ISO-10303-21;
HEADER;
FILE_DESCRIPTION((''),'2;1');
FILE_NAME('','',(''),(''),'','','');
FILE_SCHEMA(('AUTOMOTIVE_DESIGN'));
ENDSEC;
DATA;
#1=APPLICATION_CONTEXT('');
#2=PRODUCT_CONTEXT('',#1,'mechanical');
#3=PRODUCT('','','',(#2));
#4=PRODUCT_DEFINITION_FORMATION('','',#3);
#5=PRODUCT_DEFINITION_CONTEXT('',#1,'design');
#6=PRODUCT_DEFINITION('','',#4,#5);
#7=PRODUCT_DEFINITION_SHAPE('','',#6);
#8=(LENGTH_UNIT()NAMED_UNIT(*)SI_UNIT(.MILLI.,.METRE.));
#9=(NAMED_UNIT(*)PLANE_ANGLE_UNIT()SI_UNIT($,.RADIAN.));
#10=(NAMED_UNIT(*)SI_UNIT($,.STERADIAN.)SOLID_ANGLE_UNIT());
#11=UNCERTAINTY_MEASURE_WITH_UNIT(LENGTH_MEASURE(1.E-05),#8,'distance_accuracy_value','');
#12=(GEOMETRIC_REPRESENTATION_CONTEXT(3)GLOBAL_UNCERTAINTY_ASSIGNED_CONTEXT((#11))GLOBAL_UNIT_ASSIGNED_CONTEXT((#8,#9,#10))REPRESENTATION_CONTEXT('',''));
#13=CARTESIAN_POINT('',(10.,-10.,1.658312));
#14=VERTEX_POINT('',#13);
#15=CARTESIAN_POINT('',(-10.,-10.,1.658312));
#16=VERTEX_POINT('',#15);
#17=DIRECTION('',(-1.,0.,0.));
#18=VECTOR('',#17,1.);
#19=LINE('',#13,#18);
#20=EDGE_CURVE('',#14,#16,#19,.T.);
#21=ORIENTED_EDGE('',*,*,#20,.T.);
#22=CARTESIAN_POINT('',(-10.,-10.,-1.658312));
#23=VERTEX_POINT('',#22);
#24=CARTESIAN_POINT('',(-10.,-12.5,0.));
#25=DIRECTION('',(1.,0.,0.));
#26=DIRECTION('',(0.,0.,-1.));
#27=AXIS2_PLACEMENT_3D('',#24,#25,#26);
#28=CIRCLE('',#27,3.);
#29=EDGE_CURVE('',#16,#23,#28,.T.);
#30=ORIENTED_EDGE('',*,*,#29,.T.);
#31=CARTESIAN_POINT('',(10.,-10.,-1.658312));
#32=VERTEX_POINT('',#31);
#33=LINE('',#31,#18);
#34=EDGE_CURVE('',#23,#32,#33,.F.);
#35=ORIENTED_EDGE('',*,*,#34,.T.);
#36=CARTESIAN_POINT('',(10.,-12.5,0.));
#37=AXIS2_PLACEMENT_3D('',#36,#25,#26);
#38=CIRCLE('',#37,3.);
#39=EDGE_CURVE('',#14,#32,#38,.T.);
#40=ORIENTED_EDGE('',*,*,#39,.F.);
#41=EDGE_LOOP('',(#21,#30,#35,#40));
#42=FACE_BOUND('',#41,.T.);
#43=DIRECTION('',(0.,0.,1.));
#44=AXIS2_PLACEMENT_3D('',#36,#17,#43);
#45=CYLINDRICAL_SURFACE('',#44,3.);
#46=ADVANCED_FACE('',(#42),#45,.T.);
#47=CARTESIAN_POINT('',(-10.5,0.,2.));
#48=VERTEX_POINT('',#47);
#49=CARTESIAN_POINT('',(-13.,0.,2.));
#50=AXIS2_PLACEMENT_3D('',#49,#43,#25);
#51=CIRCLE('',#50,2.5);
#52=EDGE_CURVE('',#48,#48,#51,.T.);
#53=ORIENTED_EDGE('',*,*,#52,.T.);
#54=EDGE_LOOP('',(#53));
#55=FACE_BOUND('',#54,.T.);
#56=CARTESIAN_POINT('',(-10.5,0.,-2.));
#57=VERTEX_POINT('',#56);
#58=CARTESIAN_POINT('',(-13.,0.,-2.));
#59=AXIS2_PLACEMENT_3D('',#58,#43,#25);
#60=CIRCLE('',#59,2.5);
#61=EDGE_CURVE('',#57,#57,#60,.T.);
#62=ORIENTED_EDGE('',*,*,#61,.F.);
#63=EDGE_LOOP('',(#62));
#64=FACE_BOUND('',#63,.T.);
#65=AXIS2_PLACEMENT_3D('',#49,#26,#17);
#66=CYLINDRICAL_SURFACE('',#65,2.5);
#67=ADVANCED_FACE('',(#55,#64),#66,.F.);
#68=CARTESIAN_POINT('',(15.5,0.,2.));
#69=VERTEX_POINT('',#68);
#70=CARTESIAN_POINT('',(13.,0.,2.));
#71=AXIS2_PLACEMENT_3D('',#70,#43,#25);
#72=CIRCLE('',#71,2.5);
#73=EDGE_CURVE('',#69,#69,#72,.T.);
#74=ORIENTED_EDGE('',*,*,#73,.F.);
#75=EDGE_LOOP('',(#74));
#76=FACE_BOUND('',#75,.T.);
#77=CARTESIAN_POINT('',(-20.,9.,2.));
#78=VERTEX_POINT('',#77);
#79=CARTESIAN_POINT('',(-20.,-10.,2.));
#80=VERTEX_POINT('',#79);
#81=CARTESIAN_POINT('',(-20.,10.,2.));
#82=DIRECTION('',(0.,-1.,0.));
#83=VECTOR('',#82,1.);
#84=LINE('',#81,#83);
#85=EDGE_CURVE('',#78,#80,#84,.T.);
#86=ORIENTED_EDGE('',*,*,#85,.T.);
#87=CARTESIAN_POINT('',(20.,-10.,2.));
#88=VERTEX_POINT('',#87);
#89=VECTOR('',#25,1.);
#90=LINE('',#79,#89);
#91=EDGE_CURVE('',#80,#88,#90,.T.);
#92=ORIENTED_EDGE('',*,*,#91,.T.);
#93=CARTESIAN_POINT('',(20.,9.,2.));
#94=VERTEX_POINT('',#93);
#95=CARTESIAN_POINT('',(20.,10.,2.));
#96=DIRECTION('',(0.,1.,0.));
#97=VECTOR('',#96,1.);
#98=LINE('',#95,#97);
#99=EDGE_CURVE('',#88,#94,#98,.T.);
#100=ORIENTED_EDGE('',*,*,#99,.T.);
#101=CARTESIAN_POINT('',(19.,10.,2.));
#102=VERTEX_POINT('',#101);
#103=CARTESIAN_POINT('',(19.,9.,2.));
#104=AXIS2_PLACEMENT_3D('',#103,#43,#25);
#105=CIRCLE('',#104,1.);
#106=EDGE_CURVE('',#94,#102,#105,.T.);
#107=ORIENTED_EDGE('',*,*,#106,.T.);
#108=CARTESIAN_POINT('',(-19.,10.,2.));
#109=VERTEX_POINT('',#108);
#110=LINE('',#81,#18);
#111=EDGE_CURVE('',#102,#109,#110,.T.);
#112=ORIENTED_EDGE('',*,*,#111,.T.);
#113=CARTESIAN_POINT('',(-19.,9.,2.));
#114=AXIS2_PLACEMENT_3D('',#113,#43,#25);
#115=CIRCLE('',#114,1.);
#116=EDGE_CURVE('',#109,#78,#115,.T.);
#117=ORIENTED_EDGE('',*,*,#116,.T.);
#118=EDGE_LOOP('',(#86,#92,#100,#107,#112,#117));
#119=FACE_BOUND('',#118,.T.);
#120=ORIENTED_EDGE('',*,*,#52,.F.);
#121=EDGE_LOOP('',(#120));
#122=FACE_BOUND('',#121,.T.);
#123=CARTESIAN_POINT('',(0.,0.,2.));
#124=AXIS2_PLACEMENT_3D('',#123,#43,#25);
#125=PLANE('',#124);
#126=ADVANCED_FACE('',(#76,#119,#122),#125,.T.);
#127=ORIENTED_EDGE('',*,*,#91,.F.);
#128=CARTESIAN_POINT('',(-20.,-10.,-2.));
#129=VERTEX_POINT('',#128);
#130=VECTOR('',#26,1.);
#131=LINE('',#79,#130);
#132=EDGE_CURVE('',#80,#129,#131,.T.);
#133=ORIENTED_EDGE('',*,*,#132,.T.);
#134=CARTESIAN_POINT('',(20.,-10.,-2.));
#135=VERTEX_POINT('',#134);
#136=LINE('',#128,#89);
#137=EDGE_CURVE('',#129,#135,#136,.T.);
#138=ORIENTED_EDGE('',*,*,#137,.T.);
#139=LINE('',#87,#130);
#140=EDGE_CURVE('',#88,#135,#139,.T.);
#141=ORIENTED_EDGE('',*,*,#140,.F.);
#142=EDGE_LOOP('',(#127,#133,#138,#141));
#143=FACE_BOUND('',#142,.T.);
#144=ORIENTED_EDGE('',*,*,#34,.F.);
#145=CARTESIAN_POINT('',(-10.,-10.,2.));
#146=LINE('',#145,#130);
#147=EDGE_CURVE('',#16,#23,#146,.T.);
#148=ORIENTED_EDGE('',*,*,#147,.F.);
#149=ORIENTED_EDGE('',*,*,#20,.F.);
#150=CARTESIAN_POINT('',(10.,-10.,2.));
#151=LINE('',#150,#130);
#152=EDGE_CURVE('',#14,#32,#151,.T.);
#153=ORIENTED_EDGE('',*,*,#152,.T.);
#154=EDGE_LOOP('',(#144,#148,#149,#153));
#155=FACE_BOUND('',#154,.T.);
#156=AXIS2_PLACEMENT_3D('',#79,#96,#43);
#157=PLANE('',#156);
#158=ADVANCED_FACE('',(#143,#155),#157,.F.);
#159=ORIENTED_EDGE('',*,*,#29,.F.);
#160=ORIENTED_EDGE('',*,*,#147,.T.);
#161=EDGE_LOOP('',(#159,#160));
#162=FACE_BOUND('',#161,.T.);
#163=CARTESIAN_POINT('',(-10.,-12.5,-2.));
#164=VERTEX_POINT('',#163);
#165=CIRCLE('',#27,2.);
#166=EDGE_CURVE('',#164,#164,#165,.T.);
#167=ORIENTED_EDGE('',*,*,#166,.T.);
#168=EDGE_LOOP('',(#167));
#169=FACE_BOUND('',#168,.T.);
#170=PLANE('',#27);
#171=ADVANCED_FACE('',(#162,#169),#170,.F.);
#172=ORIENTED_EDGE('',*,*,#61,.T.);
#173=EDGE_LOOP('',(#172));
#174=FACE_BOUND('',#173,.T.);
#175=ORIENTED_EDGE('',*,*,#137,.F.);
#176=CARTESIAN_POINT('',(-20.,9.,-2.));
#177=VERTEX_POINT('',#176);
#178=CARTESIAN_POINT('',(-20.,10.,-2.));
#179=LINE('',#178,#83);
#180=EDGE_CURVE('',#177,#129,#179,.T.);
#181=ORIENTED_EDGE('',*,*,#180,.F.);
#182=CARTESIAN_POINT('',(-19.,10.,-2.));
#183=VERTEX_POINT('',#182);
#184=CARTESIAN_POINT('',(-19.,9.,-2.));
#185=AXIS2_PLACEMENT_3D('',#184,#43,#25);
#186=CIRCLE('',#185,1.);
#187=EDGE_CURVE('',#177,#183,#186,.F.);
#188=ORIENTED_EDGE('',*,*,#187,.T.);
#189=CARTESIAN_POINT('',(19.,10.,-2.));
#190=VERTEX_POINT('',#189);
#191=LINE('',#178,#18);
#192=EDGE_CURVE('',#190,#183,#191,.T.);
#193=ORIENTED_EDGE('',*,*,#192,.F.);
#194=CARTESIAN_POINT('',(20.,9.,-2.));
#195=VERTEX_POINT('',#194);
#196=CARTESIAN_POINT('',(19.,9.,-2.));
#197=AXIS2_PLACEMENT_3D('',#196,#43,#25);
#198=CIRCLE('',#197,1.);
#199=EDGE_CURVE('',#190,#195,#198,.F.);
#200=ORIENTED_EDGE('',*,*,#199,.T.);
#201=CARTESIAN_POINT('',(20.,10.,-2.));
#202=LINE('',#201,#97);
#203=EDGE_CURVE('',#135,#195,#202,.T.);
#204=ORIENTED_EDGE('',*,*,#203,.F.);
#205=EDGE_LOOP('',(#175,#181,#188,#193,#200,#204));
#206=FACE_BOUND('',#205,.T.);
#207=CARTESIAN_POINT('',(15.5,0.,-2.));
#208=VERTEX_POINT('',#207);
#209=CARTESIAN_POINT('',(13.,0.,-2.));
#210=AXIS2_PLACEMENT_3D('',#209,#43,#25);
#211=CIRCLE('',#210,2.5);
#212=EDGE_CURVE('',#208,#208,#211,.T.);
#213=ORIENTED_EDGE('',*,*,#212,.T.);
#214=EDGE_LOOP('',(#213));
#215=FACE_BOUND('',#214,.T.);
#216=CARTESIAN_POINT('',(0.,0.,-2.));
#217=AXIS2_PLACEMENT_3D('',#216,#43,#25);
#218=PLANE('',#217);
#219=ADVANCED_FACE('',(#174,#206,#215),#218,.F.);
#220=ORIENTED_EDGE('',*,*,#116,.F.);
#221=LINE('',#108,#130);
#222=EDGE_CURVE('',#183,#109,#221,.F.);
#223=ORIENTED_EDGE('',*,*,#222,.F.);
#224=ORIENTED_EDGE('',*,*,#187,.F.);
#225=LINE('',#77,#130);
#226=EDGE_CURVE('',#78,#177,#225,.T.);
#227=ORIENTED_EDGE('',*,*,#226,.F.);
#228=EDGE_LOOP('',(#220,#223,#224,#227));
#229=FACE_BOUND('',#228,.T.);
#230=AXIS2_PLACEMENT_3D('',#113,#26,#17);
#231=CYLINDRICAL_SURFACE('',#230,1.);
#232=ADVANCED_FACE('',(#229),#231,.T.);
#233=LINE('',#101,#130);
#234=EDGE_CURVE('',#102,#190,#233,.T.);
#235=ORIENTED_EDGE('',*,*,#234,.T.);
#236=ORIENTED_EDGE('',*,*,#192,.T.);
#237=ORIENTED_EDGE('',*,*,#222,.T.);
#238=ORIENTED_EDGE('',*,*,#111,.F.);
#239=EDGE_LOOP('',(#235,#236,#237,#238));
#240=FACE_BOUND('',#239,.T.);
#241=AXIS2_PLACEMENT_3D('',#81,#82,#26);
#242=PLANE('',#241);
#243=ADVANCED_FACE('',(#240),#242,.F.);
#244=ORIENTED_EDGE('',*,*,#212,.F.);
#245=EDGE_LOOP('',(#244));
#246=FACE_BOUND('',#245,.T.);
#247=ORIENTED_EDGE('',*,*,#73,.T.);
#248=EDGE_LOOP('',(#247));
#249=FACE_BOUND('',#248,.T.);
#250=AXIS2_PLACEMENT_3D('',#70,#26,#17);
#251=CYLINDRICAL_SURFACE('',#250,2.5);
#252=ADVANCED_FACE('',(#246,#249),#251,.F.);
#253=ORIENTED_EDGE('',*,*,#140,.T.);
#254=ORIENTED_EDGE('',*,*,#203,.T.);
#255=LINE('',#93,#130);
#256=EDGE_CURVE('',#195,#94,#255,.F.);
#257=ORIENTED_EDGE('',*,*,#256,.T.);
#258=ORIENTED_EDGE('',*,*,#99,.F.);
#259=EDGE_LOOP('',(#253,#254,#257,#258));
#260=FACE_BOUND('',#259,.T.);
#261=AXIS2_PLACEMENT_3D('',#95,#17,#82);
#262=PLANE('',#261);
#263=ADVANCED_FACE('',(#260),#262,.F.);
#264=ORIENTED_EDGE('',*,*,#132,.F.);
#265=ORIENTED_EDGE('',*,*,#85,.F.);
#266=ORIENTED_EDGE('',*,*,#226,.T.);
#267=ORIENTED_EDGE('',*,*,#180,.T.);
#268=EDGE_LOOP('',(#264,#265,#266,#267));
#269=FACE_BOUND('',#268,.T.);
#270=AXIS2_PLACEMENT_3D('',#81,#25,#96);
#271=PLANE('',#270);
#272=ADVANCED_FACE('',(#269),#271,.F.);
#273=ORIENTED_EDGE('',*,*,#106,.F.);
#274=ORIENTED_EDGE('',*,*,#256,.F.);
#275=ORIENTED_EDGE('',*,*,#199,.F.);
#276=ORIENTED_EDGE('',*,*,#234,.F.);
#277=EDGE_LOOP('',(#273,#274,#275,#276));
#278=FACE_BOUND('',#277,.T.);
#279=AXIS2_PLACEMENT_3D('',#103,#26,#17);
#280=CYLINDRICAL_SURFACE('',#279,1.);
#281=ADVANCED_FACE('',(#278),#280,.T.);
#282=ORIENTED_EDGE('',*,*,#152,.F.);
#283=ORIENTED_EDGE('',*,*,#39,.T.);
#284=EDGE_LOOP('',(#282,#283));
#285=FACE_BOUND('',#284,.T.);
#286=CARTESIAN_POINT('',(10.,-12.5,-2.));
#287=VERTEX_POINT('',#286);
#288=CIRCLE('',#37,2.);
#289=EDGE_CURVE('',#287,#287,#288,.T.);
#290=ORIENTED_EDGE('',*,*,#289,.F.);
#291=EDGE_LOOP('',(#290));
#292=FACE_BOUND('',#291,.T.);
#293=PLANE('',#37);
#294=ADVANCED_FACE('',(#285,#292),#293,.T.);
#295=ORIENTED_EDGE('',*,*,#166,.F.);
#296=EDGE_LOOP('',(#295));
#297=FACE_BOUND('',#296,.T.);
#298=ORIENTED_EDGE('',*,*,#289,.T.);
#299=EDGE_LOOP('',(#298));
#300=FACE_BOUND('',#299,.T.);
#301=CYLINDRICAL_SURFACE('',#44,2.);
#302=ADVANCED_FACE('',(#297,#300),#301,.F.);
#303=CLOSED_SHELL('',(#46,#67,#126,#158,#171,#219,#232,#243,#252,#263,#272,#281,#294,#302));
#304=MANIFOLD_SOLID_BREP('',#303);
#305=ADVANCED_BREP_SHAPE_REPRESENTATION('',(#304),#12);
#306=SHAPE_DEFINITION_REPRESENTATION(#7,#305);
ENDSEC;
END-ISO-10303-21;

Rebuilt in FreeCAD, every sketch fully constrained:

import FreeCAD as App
import Part
import Sketcher
from FreeCAD import Vector


def edges_at(feature, points):
    """Names of the edges that pass closest to the given points."""
    edges = feature.Shape.Edges
    near = lambda p: min(range(len(edges)), key=lambda i: edges[i].distToShape(Part.Vertex(*p))[0])
    return sorted({f"Edge{near(p) + 1}" for p in points})


def add_polygon(sketch, points):
    """Adds a closed chain of lines whose ends are joined by coincident constraints."""
    first, n = sketch.GeometryCount, len(points)
    for a, b in zip(points, points[1:] + points[:1]):
        sketch.addGeometry(Part.LineSegment(App.Vector(*a, 0), App.Vector(*b, 0)), False)
    for i in range(n):
        sketch.addConstraint(Sketcher.Constraint("Coincident", first + i, 2, first + (i + 1) % n, 1))

doc = App.newDocument("Part")
body = doc.addObject("PartDesign::Body", "Body")

sketch1 = body.newObject("Sketcher::SketchObject", "Sketch")
sketch1.AttachmentSupport = (doc.getObject("XY_Plane"), [""])
sketch1.MapMode = "FlatFace"
add_polygon(sketch1, [(-20, 10), (-20, -10), (20, -10), (20, 10)])
sketch1.addGeometry(Part.Circle(Vector(-13, 0, 0), Vector(0, 0, 1), 2.5), False)
sketch1.addGeometry(Part.Circle(Vector(13, 0, 0), Vector(0, 0, 1), 2.5), False)
sketch1.addConstraint(Sketcher.Constraint("Vertical", 0))
sketch1.addConstraint(Sketcher.Constraint("Horizontal", 1))
sketch1.addConstraint(Sketcher.Constraint("Vertical", 2))
sketch1.addConstraint(Sketcher.Constraint("Horizontal", 3))
sketch1.addConstraint(Sketcher.Constraint("Equal", 4, 5))
sketch1.addConstraint(Sketcher.Constraint("Symmetric", 4, 3, 5, 3, -1, 1))
sketch1.addConstraint(Sketcher.Constraint("Symmetric", 0, 2, 2, 2, -1, 1))
sketch1.addConstraint(Sketcher.Constraint("PointOnObject", 4, 3, -1))
sketch1.addConstraint(Sketcher.Constraint("Diameter", 4, 5.0))
sketch1.addConstraint(Sketcher.Constraint("DistanceX", 1, 1, 1, 2, 40.0))
sketch1.addConstraint(Sketcher.Constraint("DistanceY", 0, 2, 0, 1, 20.0))
sketch1.addConstraint(Sketcher.Constraint("DistanceX", 4, 3, -1, 1, 13.0))
pad1 = body.newObject("PartDesign::Pad", "Pad")
pad1.Profile = sketch1
pad1.Length = 4
pad1.Midplane = True

sketch2 = body.newObject("Sketcher::SketchObject", "Sketch001")
sketch2.AttachmentSupport = (doc.getObject("YZ_Plane"), [""])
sketch2.MapMode = "FlatFace"
sketch2.addGeometry(Part.Circle(Vector(-12.5, 0, 0), Vector(0, 0, 1), 3), False)
sketch2.addGeometry(Part.Circle(Vector(-12.5, 0, 0), Vector(0, 0, 1), 2), False)
sketch2.addConstraint(Sketcher.Constraint("Coincident", 1, 3, 0, 3))
sketch2.addConstraint(Sketcher.Constraint("PointOnObject", 0, 3, -1))
sketch2.addConstraint(Sketcher.Constraint("Diameter", 0, 6.0))
sketch2.addConstraint(Sketcher.Constraint("Diameter", 1, 4.0))
sketch2.addConstraint(Sketcher.Constraint("DistanceX", 0, 3, -1, 1, 12.5))
pad2 = body.newObject("PartDesign::Pad", "Pad001")
pad2.Profile = sketch2
pad2.Length = 20
pad2.Midplane = True
doc.recompute()

fillet = body.newObject("PartDesign::Fillet", "Fillet")
fillet.Base = (pad2, edges_at(pad2, [(-20, 10, 0), (20, 10, 0)]))
fillet.Radius = 1

doc.recompute()
